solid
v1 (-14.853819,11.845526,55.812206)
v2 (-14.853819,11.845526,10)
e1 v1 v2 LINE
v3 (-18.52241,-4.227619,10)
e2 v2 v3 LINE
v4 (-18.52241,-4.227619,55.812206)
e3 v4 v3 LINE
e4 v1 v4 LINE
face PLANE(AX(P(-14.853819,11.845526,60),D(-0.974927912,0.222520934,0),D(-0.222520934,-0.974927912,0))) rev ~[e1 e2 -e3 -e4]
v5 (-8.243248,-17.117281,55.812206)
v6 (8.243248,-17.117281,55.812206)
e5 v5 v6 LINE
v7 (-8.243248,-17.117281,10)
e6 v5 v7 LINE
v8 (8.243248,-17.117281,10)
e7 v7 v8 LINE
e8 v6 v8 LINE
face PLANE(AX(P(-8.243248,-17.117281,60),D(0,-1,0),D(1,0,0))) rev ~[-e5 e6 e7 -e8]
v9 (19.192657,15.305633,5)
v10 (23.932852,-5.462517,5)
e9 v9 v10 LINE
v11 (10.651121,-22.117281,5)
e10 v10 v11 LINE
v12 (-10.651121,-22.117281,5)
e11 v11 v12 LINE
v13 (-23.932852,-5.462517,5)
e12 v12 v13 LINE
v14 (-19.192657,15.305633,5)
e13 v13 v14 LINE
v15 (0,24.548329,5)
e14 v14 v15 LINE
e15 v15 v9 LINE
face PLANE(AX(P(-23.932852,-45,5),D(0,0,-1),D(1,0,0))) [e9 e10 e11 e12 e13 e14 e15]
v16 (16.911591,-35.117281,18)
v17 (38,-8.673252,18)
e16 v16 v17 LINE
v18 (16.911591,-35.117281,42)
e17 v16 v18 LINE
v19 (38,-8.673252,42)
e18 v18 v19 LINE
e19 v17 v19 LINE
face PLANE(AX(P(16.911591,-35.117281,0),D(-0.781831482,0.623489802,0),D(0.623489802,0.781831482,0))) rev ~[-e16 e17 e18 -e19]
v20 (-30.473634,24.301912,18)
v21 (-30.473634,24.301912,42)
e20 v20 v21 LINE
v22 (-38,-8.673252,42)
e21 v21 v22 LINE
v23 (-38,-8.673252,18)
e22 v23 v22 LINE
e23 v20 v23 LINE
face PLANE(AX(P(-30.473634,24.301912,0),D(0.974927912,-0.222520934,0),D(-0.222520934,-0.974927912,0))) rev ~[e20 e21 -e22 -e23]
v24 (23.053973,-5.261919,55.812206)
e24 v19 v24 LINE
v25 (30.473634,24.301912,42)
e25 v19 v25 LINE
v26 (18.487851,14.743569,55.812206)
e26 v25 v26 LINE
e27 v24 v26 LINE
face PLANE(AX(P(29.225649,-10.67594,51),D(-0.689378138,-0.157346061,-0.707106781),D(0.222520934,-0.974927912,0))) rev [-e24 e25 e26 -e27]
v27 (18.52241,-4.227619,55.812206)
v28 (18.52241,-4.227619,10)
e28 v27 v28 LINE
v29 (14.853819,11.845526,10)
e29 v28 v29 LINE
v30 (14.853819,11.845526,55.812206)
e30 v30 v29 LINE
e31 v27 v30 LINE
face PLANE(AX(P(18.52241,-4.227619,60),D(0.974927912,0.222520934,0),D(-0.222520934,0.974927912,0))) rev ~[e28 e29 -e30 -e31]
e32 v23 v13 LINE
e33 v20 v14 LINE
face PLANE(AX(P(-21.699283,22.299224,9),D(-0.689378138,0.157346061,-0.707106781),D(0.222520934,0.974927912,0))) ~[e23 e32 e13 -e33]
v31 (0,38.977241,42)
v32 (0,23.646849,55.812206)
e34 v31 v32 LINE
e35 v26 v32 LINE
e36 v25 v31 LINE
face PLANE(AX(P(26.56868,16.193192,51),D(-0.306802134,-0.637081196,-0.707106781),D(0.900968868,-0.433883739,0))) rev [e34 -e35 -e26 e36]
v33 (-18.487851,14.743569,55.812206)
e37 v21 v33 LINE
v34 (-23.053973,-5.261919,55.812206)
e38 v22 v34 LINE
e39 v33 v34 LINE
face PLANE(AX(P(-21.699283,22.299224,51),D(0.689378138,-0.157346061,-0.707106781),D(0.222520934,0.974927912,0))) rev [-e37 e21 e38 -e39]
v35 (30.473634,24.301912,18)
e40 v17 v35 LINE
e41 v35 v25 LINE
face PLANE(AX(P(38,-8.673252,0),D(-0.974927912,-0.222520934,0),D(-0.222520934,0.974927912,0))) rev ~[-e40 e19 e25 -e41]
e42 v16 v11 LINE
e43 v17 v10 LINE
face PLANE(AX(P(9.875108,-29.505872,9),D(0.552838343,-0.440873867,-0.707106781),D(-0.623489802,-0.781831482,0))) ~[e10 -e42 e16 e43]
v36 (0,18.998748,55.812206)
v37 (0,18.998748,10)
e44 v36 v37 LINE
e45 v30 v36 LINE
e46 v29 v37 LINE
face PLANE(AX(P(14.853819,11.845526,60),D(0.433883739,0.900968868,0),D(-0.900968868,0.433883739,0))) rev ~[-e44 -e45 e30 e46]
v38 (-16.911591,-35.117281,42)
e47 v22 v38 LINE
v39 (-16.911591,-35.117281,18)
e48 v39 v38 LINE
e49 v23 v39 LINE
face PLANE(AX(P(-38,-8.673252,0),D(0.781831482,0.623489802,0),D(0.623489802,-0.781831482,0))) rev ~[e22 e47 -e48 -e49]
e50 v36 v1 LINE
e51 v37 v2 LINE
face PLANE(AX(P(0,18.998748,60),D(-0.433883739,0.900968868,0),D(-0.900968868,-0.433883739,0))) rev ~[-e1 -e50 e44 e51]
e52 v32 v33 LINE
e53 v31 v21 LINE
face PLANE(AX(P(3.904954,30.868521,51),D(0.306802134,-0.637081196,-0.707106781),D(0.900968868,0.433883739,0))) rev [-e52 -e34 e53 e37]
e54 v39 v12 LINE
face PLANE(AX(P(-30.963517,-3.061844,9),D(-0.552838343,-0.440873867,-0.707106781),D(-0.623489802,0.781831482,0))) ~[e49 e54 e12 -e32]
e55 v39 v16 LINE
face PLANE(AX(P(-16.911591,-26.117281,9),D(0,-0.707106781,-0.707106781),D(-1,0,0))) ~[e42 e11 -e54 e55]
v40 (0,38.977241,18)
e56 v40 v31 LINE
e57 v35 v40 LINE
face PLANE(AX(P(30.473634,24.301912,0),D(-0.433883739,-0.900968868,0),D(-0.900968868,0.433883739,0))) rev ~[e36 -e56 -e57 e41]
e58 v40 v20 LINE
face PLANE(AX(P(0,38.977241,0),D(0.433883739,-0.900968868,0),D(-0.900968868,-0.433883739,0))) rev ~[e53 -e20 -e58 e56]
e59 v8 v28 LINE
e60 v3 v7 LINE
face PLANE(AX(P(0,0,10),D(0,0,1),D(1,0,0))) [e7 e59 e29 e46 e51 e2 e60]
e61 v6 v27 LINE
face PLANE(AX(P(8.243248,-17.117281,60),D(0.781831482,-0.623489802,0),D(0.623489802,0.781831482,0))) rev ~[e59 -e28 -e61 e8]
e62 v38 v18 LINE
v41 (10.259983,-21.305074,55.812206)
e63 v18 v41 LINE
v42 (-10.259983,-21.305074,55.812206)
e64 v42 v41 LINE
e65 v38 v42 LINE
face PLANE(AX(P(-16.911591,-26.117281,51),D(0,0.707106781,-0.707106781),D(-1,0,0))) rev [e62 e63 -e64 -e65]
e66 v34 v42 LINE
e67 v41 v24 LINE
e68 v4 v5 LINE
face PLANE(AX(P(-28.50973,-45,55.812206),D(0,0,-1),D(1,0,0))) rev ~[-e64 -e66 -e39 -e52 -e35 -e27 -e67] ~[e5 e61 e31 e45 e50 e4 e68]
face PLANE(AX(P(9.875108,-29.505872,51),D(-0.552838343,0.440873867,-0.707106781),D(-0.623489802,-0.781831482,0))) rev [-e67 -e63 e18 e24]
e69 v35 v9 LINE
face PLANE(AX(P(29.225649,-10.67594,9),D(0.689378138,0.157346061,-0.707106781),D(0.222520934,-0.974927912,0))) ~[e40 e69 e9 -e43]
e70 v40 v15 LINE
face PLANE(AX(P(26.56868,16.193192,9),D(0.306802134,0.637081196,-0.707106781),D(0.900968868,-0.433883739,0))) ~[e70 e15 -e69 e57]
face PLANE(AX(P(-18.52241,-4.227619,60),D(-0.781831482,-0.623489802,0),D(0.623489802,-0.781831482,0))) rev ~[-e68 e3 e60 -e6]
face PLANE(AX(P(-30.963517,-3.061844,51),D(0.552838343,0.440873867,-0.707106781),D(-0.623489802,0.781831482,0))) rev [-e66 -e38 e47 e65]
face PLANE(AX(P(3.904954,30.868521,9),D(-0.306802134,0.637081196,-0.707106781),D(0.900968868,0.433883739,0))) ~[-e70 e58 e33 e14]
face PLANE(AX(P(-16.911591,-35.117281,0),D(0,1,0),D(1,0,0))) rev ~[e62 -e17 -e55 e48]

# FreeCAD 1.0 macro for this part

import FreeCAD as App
import Part
import Sketcher


def edges_at(feature, points):
    """Names of the edges that pass closest to the given points."""
    edges = feature.Shape.Edges
    near = lambda p: min(range(len(edges)), key=lambda i: edges[i].distToShape(Part.Vertex(*p))[0])
    return sorted({f"Edge{near(p) + 1}" for p in points})

doc = App.newDocument("Part")
params = doc.addObject("Spreadsheet::Sheet", "Params")
for row, (alias, value) in enumerate([
    ("pad1_length", "60 mm"),
    ("chamfer_size", "18 mm"),
    ("pocket1_length", "50 mm"),
    ("pocket2_length", "90 mm"),
    ("sketch4_width", "55 mm"),
    ("sketch4_height", "5 mm"),
    ("pocket3_length", "100 mm"),
], start=1):
    params.set(f"A{row}", alias)
    params.set(f"B{row}", "=" + value)
    params.setAlias(f"B{row}", alias)

body = doc.addObject("PartDesign::Body", "Body")

# Sketch on XY plane
sketch1 = body.newObject("Sketcher::SketchObject", "Sketch")
sketch1.AttachmentSupport = (doc.getObject("XY_Plane"), [""])
sketch1.MapMode = "FlatFace"
sketch1.addGeometry(Part.LineSegment(App.Vector(-17, -35, 0), App.Vector(17, -35, 0)), False)
sketch1.addGeometry(Part.LineSegment(App.Vector(17, -35, 0), App.Vector(38, -9, 0)), False)
sketch1.addGeometry(Part.LineSegment(App.Vector(38, -9, 0), App.Vector(30, 24, 0)), False)
sketch1.addGeometry(Part.LineSegment(App.Vector(30, 24, 0), App.Vector(0, 39, 0)), False)
sketch1.addGeometry(Part.LineSegment(App.Vector(0, 39, 0), App.Vector(-30, 24, 0)), False)
sketch1.addGeometry(Part.LineSegment(App.Vector(-30, 24, 0), App.Vector(-38, -9, 0)), False)
sketch1.addGeometry(Part.LineSegment(App.Vector(-38, -9, 0), App.Vector(-17, -35, 0)), False)
sketch1.addConstraint(Sketcher.Constraint("Coincident", 0, 2, 1, 1))
sketch1.addConstraint(Sketcher.Constraint("Coincident", 1, 2, 2, 1))
sketch1.addConstraint(Sketcher.Constraint("Coincident", 2, 2, 3, 1))
sketch1.addConstraint(Sketcher.Constraint("Coincident", 3, 2, 4, 1))
sketch1.addConstraint(Sketcher.Constraint("Coincident", 4, 2, 5, 1))
sketch1.addConstraint(Sketcher.Constraint("Coincident", 5, 2, 6, 1))
sketch1.addConstraint(Sketcher.Constraint("Coincident", 6, 2, 0, 1))
sketch1.addConstraint(Sketcher.Constraint("Horizontal", 0))
sketch1.addConstraint(Sketcher.Constraint("Symmetric", 2, 2, 4, 2, -2))
sketch1.addConstraint(Sketcher.Constraint("Symmetric", 1, 2, 5, 2, -2))
sketch1.addConstraint(Sketcher.Constraint("PointOnObject", 3, 2, -2))
sketch1.addConstraint(Sketcher.Constraint("Equal", 1, 2))
sketch1.addConstraint(Sketcher.Constraint("Equal", 2, 3))
sketch1.addConstraint(Sketcher.Constraint("Equal", 5, 6))
sketch1.addConstraint(Sketcher.Constraint("DistanceX", -1, 1, 1, 2, 38.0))
sketch1.addConstraint(Sketcher.Constraint("DistanceX", 0, 1, 0, 2, 33.823182))
sketch1.addConstraint(Sketcher.Constraint("Distance", 1, 33.823182))
sketch1.addConstraint(Sketcher.Constraint("DistanceY", 0, 2, -1, 1, 35.117281))
sketch1.addConstraint(Sketcher.Constraint("DistanceY", -1, 1, 3, 2, 38.977241))
pad1 = body.newObject("PartDesign::Pad", "Pad")
pad1.Profile = sketch1
pad1.setExpression("Length", "Params.pad1_length")
doc.recompute()

chamfer = body.newObject("PartDesign::Chamfer", "Chamfer")
chamfer.Base = (pad1, edges_at(pad1, [
    (0, -35.117, 0),
    (27.456, -21.895, 0),
    (34.237, 7.814, 0),
    (15.237, 31.64, 0),
    (-15.237, 31.64, 0),
    (-34.237, 7.814, 0),
    (-27.456, -21.895, 0),
    (0, -35.117, 60),
    (27.456, -21.895, 60),
    (34.237, 7.814, 60),
    (15.237, 31.64, 60),
    (-15.237, 31.64, 60),
    (-34.237, 7.814, 60),
    (-27.456, -21.895, 60),
]))
chamfer.setExpression("Size", "Params.chamfer_size")

# Sketch on XY plane
sketch2 = body.newObject("Sketcher::SketchObject", "Sketch001")
sketch2.AttachmentSupport = (doc.getObject("XY_Plane"), [""])
sketch2.MapMode = "FlatFace"
sketch2.AttachmentOffset = App.Placement(App.Vector(0, 0, 60), App.Rotation())
sketch2.addGeometry(Part.LineSegment(App.Vector(-19, -4, 0), App.Vector(-8, -17, 0)), False)
sketch2.addGeometry(Part.LineSegment(App.Vector(-8, -17, 0), App.Vector(8, -17, 0)), False)
sketch2.addGeometry(Part.LineSegment(App.Vector(8, -17, 0), App.Vector(19, -4, 0)), False)
sketch2.addGeometry(Part.LineSegment(App.Vector(19, -4, 0), App.Vector(15, 12, 0)), False)
sketch2.addGeometry(Part.LineSegment(App.Vector(15, 12, 0), App.Vector(0, 19, 0)), False)
sketch2.addGeometry(Part.LineSegment(App.Vector(0, 19, 0), App.Vector(-15, 12, 0)), False)
sketch2.addGeometry(Part.LineSegment(App.Vector(-15, 12, 0), App.Vector(-19, -4, 0)), False)
sketch2.addConstraint(Sketcher.Constraint("Coincident", 0, 2, 1, 1))
sketch2.addConstraint(Sketcher.Constraint("Coincident", 1, 2, 2, 1))
sketch2.addConstraint(Sketcher.Constraint("Coincident", 2, 2, 3, 1))
sketch2.addConstraint(Sketcher.Constraint("Coincident", 3, 2, 4, 1))
sketch2.addConstraint(Sketcher.Constraint("Coincident", 4, 2, 5, 1))
sketch2.addConstraint(Sketcher.Constraint("Coincident", 5, 2, 6, 1))
sketch2.addConstraint(Sketcher.Constraint("Coincident", 6, 2, 0, 1))
sketch2.addConstraint(Sketcher.Constraint("Horizontal", 1))
sketch2.addConstraint(Sketcher.Constraint("Symmetric", 3, 2, 5, 2, -2))
sketch2.addConstraint(Sketcher.Constraint("Symmetric", 2, 2, 6, 2, -2))
sketch2.addConstraint(Sketcher.Constraint("PointOnObject", 4, 2, -2))
sketch2.addConstraint(Sketcher.Constraint("Equal", 0, 2))
sketch2.addConstraint(Sketcher.Constraint("Equal", 2, 3))
sketch2.addConstraint(Sketcher.Constraint("Equal", 3, 4))
sketch2.addConstraint(Sketcher.Constraint("DistanceX", 1, 1, 1, 2, 16.486496))
sketch2.addConstraint(Sketcher.Constraint("DistanceY", 0, 2, -1, 1, 17.117281))
sketch2.addConstraint(Sketcher.Constraint("DistanceX", -1, 1, 2, 2, 18.52241))
sketch2.addConstraint(Sketcher.Constraint("DistanceY", 2, 2, -1, 1, 4.227619))
sketch2.addConstraint(Sketcher.Constraint("DistanceX", -1, 1, 3, 2, 14.853819))
pocket1 = body.newObject("PartDesign::Pocket", "Pocket")
pocket1.Profile = sketch2
pocket1.setExpression("Length", "Params.pocket1_length")

# Sketch on XZ plane
sketch3 = body.newObject("Sketcher::SketchObject", "Sketch002")
sketch3.AttachmentSupport = (doc.getObject("XZ_Plane"), [""])
sketch3.MapMode = "FlatFace"
sketch3.AttachmentOffset = App.Placement(App.Vector(0, 0, 45), App.Rotation())
sketch3.addGeometry(Part.LineSegment(App.Vector(-29, 65, 0), App.Vector(-29, 56, 0)), False)
sketch3.addGeometry(Part.LineSegment(App.Vector(-29, 56, 0), App.Vector(30, 56, 0)), False)
sketch3.addGeometry(Part.LineSegment(App.Vector(30, 56, 0), App.Vector(30, 65, 0)), False)
sketch3.addGeometry(Part.LineSegment(App.Vector(30, 65, 0), App.Vector(-29, 65, 0)), False)
sketch3.addConstraint(Sketcher.Constraint("Coincident", 0, 2, 1, 1))
sketch3.addConstraint(Sketcher.Constraint("Coincident", 1, 2, 2, 1))
sketch3.addConstraint(Sketcher.Constraint("Coincident", 2, 2, 3, 1))
sketch3.addConstraint(Sketcher.Constraint("Coincident", 3, 2, 0, 1))
sketch3.addConstraint(Sketcher.Constraint("Vertical", 0))
sketch3.addConstraint(Sketcher.Constraint("Horizontal", 1))
sketch3.addConstraint(Sketcher.Constraint("Vertical", 2))
sketch3.addConstraint(Sketcher.Constraint("Horizontal", 3))
sketch3.addConstraint(Sketcher.Constraint("DistanceX", 1, 1, 1, 2, 58.87677))
sketch3.addConstraint(Sketcher.Constraint("DistanceY", 0, 2, 0, 1, 9.286556))
sketch3.addConstraint(Sketcher.Constraint("DistanceX", 0, 2, -1, 1, 28.50973))
sketch3.addConstraint(Sketcher.Constraint("DistanceY", -1, 1, 0, 2, 55.812206))
pocket2 = body.newObject("PartDesign::Pocket", "Pocket001")
pocket2.Profile = sketch3
pocket2.setExpression("Length", "Params.pocket2_length")

# Sketch on XZ plane
sketch4 = body.newObject("Sketcher::SketchObject", "Sketch003")
sketch4.AttachmentSupport = (doc.getObject("XZ_Plane"), [""])
sketch4.MapMode = "FlatFace"
sketch4.AttachmentOffset = App.Placement(App.Vector(0, 0, 45), App.Rotation())
sketch4.addGeometry(Part.LineSegment(App.Vector(-24, 5, 0), App.Vector(-24, 0, 0)), False)
sketch4.addGeometry(Part.LineSegment(App.Vector(-24, 0, 0), App.Vector(31, 0, 0)), False)
sketch4.addGeometry(Part.LineSegment(App.Vector(31, 0, 0), App.Vector(31, 5, 0)), False)
sketch4.addGeometry(Part.LineSegment(App.Vector(31, 5, 0), App.Vector(-24, 5, 0)), False)
sketch4.addConstraint(Sketcher.Constraint("Coincident", 0, 2, 1, 1))
sketch4.addConstraint(Sketcher.Constraint("Coincident", 1, 2, 2, 1))
sketch4.addConstraint(Sketcher.Constraint("Coincident", 2, 2, 3, 1))
sketch4.addConstraint(Sketcher.Constraint("Coincident", 3, 2, 0, 1))
sketch4.addConstraint(Sketcher.Constraint("Vertical", 0))
sketch4.addConstraint(Sketcher.Constraint("Horizontal", 1))
sketch4.addConstraint(Sketcher.Constraint("Vertical", 2))
sketch4.addConstraint(Sketcher.Constraint("Horizontal", 3))
sketch4.addConstraint(Sketcher.Constraint("PointOnObject", 0, 2, -1))
sketch4.addConstraint(Sketcher.Constraint("DistanceX", 1, 1, 1, 2, 55.0))
sketch4.addConstraint(Sketcher.Constraint("DistanceY", 0, 2, 0, 1, 5.0))
sketch4.addConstraint(Sketcher.Constraint("DistanceX", 0, 2, -1, 1, 23.932852))
sketch4.setExpression("Constraints[9]", "Params.sketch4_width")
sketch4.setExpression("Constraints[10]", "Params.sketch4_height")
pocket3 = body.newObject("PartDesign::Pocket", "Pocket002")
pocket3.Profile = sketch4
pocket3.setExpression("Length", "Params.pocket3_length")

doc.recompute()
